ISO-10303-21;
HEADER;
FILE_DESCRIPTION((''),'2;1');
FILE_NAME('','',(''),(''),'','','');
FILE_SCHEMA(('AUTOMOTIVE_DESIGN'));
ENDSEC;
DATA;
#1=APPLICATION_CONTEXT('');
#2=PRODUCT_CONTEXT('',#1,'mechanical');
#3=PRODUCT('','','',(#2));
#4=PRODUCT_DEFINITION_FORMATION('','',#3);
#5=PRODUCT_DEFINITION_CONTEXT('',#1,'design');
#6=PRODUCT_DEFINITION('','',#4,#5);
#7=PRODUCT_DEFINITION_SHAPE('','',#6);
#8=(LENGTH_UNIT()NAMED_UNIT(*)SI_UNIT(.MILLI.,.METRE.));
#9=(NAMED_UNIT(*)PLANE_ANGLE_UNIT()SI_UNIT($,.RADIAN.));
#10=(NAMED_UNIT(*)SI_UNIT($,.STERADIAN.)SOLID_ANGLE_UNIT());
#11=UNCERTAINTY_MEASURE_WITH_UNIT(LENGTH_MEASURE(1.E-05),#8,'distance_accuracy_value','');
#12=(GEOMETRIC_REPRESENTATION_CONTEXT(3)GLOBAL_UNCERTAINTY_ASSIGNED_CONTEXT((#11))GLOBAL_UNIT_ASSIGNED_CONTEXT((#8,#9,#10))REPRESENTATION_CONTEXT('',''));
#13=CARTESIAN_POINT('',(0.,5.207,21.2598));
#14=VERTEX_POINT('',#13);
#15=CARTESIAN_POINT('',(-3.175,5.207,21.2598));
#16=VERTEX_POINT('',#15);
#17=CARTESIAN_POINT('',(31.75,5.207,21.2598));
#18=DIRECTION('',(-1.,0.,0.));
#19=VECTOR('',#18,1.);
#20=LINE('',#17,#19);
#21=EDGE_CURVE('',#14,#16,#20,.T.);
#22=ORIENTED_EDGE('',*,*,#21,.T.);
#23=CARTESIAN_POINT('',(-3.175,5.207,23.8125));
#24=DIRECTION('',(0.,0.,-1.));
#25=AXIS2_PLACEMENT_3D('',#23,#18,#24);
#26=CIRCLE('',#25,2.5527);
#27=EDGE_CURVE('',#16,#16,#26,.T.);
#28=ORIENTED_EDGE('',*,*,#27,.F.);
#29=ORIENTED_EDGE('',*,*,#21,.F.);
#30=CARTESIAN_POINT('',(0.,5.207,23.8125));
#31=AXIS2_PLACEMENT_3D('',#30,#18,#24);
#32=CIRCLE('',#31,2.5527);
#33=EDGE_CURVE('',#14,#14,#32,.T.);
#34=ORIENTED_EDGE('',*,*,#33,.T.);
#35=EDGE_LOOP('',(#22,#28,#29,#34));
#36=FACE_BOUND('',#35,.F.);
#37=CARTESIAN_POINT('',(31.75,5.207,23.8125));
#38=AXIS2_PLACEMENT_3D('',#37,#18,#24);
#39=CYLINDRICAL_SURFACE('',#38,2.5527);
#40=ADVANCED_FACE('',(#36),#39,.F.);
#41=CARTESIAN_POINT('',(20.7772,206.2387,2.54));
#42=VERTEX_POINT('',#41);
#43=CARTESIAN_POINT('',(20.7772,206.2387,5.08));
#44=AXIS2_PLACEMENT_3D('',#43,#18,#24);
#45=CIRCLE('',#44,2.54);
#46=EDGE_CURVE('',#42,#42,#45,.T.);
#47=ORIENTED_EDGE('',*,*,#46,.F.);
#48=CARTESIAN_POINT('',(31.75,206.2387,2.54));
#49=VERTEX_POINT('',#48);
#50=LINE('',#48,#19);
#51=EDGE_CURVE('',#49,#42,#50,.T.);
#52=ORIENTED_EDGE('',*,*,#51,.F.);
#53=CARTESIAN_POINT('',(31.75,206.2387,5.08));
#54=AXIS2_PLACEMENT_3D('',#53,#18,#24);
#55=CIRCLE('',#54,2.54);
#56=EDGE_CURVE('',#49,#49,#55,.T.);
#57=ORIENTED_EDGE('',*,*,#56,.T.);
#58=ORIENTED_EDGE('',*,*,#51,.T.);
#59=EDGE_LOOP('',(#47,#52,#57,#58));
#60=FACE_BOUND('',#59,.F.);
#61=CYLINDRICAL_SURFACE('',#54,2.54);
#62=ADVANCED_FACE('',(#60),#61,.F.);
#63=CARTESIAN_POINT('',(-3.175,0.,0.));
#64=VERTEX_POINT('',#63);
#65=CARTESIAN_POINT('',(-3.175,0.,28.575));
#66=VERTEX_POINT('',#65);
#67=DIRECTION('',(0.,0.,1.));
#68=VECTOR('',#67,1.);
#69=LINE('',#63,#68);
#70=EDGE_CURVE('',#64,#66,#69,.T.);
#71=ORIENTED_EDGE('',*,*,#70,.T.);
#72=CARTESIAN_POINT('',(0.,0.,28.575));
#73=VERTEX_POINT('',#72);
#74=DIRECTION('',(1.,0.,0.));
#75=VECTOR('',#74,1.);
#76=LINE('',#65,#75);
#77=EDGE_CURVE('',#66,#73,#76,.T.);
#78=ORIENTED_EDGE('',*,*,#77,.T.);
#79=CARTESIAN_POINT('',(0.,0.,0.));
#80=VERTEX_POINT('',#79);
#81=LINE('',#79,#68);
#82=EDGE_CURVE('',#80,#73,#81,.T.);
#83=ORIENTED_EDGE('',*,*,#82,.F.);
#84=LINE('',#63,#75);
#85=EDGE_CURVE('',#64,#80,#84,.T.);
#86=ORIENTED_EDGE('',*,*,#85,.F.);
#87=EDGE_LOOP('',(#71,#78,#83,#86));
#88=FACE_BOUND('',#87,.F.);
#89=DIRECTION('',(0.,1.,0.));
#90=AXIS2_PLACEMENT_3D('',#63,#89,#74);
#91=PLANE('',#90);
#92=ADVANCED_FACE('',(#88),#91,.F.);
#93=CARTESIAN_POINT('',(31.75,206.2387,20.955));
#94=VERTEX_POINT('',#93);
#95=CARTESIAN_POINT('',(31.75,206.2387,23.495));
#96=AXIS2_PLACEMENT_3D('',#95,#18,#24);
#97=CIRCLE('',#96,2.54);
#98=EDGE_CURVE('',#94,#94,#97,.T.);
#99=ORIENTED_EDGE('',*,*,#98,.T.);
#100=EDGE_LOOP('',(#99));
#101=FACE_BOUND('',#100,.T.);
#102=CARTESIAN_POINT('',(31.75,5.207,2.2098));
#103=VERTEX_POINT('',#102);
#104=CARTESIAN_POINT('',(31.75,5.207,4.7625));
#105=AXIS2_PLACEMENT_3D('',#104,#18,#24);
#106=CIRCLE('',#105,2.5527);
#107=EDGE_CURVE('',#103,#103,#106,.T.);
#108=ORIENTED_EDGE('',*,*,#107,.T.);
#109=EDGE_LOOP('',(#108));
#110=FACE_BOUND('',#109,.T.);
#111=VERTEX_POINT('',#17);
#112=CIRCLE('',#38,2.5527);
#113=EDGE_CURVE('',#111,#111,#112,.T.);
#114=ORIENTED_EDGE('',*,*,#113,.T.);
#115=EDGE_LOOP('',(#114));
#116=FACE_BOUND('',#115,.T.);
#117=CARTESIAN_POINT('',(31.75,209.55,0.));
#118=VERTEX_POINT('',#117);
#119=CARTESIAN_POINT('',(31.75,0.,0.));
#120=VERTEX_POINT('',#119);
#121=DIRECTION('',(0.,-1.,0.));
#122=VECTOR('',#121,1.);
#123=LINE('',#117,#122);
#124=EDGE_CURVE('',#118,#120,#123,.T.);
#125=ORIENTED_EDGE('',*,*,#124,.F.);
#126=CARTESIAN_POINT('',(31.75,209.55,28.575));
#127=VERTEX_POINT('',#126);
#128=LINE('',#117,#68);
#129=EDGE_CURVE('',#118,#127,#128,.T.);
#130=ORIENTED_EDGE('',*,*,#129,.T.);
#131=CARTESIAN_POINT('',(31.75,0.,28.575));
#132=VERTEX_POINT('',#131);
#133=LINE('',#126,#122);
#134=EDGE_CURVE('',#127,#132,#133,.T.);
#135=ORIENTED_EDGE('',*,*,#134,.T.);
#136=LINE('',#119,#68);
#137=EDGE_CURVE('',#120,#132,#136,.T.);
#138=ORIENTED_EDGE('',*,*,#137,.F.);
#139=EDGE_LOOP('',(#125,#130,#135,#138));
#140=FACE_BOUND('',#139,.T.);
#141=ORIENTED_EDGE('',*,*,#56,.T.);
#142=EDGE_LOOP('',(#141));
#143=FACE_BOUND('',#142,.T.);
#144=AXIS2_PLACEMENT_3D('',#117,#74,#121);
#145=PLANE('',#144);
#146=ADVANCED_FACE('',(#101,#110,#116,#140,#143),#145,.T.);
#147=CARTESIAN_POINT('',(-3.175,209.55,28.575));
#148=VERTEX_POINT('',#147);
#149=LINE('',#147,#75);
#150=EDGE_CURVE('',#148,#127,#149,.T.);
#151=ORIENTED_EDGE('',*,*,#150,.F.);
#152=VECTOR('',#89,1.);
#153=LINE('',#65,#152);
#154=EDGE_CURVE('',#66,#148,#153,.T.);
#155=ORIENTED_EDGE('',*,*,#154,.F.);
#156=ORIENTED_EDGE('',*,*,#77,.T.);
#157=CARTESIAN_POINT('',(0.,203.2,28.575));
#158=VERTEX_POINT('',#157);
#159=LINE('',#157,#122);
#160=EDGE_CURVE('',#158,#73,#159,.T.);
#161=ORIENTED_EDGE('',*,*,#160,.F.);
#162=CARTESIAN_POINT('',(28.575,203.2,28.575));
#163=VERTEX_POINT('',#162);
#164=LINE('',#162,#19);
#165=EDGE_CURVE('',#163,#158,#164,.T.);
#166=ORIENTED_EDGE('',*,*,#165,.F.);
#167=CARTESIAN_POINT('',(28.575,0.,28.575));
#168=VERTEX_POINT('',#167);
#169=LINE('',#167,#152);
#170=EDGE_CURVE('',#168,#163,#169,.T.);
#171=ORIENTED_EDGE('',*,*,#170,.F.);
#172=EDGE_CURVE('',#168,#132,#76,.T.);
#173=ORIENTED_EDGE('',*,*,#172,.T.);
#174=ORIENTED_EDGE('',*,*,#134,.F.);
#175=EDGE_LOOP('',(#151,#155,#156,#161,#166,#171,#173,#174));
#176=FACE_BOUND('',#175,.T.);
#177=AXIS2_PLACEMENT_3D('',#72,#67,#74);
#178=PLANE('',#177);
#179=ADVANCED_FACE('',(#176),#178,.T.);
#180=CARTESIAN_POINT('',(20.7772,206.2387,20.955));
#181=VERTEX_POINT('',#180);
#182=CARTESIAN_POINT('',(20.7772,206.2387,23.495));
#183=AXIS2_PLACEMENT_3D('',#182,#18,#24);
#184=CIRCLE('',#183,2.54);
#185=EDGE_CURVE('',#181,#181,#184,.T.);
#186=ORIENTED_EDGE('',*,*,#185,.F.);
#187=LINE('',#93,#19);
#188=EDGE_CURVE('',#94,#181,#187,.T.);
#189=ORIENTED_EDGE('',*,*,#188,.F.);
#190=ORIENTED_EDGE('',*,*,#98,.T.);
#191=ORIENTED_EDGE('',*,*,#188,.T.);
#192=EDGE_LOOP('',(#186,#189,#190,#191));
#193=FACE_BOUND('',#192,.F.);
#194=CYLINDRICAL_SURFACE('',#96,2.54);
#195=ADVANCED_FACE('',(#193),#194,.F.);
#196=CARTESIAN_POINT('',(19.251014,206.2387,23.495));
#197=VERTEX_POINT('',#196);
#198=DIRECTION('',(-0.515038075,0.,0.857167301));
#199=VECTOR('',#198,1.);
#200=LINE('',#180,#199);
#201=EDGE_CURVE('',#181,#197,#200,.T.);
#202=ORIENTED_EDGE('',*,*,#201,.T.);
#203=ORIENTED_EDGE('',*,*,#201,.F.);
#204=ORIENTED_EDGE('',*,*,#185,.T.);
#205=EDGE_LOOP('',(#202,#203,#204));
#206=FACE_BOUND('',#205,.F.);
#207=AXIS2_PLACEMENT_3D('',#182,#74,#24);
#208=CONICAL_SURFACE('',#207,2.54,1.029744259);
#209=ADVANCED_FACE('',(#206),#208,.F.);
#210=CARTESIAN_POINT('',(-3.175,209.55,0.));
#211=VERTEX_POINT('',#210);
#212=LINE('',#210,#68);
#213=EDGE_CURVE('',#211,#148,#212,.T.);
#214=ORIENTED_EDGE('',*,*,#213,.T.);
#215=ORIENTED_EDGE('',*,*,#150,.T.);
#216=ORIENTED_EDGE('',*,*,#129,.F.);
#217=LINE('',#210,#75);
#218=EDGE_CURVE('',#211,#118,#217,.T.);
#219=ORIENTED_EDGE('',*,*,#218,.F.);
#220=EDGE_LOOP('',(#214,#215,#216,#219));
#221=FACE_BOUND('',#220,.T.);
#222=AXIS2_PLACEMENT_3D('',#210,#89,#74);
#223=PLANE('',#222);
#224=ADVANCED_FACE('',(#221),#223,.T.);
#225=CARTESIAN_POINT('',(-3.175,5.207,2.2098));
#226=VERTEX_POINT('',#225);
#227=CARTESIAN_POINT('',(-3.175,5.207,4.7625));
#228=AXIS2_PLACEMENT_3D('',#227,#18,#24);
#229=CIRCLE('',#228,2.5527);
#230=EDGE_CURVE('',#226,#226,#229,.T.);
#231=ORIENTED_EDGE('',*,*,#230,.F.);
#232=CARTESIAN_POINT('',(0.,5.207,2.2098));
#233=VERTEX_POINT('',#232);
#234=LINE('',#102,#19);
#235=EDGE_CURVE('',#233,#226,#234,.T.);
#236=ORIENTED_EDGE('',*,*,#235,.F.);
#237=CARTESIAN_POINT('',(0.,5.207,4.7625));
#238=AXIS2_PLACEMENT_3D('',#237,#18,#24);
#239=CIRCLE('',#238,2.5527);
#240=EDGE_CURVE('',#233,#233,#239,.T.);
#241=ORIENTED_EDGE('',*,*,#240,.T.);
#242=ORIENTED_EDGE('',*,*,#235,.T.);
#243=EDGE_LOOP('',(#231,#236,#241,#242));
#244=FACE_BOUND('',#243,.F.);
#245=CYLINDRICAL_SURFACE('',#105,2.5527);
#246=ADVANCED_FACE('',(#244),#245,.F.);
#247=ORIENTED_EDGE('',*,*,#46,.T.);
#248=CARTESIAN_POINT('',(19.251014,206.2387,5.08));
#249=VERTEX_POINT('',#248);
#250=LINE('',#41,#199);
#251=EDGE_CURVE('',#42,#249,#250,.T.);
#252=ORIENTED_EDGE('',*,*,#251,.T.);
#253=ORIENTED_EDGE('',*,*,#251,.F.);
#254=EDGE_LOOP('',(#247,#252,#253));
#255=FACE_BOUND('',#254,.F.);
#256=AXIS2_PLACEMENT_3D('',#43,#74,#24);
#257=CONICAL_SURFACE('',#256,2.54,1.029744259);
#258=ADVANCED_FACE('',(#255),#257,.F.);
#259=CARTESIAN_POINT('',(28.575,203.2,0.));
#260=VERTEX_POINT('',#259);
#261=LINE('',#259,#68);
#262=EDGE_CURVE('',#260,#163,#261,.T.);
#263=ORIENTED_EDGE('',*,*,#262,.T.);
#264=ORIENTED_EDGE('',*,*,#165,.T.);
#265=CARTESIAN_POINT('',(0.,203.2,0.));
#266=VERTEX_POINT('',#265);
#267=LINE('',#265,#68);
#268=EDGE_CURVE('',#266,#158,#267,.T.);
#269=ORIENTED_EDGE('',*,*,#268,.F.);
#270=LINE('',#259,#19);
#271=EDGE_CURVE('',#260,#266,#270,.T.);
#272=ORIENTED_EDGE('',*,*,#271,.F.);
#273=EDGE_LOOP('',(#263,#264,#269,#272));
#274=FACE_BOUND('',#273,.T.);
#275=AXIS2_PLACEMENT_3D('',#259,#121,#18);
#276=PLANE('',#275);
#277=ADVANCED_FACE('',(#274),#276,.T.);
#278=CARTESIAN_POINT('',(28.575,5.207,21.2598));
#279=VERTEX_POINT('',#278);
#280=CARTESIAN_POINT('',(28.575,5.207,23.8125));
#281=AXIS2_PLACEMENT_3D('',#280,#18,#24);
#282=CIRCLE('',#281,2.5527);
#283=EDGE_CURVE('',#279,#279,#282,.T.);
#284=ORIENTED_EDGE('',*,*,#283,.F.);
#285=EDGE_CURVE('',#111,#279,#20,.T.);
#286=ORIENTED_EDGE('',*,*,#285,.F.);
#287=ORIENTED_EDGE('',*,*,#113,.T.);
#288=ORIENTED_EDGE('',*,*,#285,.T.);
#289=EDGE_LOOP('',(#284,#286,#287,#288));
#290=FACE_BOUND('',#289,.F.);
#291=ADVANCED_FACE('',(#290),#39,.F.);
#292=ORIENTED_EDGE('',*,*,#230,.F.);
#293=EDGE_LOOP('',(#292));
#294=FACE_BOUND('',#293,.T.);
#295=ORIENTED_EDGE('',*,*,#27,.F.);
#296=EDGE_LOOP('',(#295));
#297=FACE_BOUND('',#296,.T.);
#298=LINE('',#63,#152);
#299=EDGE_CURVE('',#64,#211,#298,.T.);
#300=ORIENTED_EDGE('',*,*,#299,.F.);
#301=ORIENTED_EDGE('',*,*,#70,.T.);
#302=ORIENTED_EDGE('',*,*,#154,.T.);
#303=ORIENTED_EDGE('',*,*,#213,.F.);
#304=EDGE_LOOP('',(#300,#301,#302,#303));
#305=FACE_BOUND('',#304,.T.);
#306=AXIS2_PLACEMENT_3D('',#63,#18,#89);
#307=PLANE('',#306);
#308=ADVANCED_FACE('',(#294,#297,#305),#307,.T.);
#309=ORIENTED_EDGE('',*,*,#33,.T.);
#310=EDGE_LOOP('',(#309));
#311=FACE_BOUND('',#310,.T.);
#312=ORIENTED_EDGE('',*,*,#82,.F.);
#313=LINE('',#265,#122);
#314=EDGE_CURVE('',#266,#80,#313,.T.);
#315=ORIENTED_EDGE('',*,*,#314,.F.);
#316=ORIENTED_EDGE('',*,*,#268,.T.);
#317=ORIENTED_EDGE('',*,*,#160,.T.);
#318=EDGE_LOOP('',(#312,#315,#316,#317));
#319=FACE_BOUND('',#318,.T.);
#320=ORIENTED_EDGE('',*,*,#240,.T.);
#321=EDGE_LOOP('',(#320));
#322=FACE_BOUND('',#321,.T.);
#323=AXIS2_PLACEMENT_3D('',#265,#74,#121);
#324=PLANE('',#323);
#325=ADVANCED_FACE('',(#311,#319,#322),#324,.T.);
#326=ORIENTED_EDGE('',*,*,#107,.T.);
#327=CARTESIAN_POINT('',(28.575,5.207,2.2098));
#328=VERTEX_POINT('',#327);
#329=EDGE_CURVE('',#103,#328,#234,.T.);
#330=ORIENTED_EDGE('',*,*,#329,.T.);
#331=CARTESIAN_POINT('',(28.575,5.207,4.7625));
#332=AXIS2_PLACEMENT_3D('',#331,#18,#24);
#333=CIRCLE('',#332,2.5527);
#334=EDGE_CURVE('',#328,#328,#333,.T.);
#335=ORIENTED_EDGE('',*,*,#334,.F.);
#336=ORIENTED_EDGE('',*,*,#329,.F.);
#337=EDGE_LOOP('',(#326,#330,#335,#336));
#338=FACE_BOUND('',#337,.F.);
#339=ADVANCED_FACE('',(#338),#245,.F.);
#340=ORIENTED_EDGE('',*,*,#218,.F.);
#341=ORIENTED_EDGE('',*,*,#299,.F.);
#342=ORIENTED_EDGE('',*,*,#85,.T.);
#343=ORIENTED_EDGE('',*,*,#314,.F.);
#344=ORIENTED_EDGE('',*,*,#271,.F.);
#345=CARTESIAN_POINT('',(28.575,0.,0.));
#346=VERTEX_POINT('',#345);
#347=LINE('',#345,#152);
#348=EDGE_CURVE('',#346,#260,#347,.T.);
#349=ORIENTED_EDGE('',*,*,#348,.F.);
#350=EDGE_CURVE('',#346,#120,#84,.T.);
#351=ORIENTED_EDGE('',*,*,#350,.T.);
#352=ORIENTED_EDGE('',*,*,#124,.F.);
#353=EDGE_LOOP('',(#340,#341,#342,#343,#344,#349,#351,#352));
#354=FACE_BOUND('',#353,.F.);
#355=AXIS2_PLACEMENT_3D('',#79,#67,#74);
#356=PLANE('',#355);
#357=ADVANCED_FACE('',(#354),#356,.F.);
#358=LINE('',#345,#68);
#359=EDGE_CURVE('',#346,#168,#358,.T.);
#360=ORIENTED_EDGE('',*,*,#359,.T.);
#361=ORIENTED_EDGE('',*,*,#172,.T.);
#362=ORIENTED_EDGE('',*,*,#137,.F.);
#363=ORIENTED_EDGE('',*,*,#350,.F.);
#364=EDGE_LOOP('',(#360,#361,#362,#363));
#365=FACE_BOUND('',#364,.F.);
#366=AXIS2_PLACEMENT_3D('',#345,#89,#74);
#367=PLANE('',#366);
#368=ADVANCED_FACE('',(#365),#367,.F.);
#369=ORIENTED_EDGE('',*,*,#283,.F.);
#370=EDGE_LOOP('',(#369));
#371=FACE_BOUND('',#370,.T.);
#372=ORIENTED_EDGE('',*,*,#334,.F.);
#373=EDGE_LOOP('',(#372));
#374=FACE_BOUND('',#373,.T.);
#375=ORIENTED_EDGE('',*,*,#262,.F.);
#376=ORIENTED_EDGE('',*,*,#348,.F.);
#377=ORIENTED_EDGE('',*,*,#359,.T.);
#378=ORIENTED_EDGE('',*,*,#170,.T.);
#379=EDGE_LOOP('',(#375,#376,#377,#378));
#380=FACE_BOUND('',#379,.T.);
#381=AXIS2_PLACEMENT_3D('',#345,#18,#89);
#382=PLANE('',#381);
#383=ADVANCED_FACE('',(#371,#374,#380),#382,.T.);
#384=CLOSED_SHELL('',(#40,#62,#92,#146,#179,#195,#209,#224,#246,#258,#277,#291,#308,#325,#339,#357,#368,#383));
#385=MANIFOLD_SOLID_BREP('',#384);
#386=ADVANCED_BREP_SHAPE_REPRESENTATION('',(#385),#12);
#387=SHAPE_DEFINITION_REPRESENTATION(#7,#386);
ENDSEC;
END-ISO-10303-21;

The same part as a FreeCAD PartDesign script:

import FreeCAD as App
import Part
import Sketcher

V = App.Vector
Q = App.Units.Quantity


def add_polygon(sketch, points):
    """Adds a closed chain of lines whose ends are joined by coincident constraints."""
    first, n = sketch.GeometryCount, len(points)
    for a, b in zip(points, points[1:] + points[:1]):
        sketch.addGeometry(Part.LineSegment(App.Vector(*a, 0), App.Vector(*b, 0)), False)
    for i in range(n):
        sketch.addConstraint(Sketcher.Constraint("Coincident", first + i, 2, first + (i + 1) % n, 1))

doc = App.newDocument("Part")
body = doc.addObject("PartDesign::Body", "Body")

# Sketch on XY plane
sketch1 = doc.addObject("Sketcher::SketchObject", "Sketch")
body.addObject(sketch1)
sketch1.AttachmentSupport = (doc.XY_Plane, [""])
sketch1.MapMode = "FlatFace"
add_polygon(sketch1, [(-3.2, 0), (0, 0), (0, 203.2), (28.6, 203.2), (28.6, 0), (31.8, 0), (31.8, 209.6), (-3.2, 209.6)])  # lines 0-7
sketch1.addConstraint([
    Sketcher.Constraint("Horizontal", 0),
    Sketcher.Constraint("Vertical", 1),
    Sketcher.Constraint("Horizontal", 2),
    Sketcher.Constraint("Vertical", 3),
    Sketcher.Constraint("Horizontal", 4),
    Sketcher.Constraint("Vertical", 5),
    Sketcher.Constraint("Horizontal", 6),
    Sketcher.Constraint("Vertical", 7),
    Sketcher.Constraint("Coincident", 0, 2, -1, 1),
    Sketcher.Constraint("PointOnObject", 3, 2, -1),
    Sketcher.Constraint("Equal", 0, 4),
    Sketcher.Constraint("DistanceY", 1, 1, 1, 2, Q("8 in")),
    Sketcher.Constraint("DistanceX", 0, 1, 0, 2, Q("0.125 in")),
    Sketcher.Constraint("DistanceX", 2, 1, 2, 2, Q("1.125 in")),
    Sketcher.Constraint("DistanceY", 2, 2, 5, 2, Q("0.25 in")),
])
pad1 = doc.addObject("PartDesign::Pad", "Pad")
body.addObject(pad1)
pad1.Profile = sketch1
pad1.Length = Q("1.125 in")

# Sketch on YZ plane
sketch2 = doc.addObject("Sketcher::SketchObject", "Sketch001")
body.addObject(sketch2)
sketch2.AttachmentSupport = (doc.YZ_Plane, [""])
sketch2.MapMode = "FlatFace"
sketch2.AttachmentOffset = App.Placement(V(0, 0, 1.25 * 25.4), App.Rotation())
sketch2.addGeometry([
    Part.Circle(V(5.2, 23.8, 0), V(0, 0, 1), 2.6),
    Part.Circle(V(5.2, 4.8, 0), V(0, 0, 1), 2.6),
], False)
sketch2.addConstraint([
    Sketcher.Constraint("Equal", 0, 1),
    Sketcher.Constraint("Vertical", 0, 3, 1, 3),
    Sketcher.Constraint("Diameter", 0, Q("0.201 in")),
    Sketcher.Constraint("DistanceY", 1, 3, 0, 3, Q("0.75 in")),
    Sketcher.Constraint("DistanceX", -1, 1, 0, 3, Q("0.205 in")),
    Sketcher.Constraint("DistanceY", -1, 1, 0, 3, Q("0.9375 in")),
])
doc.recompute()
hole = doc.addObject("PartDesign::Hole", "Hole")
body.addObject(hole)
hole.Profile = sketch2
hole.ThreadType = "None"
hole.Diameter = Q("0.201 in")
hole.DepthType = "ThroughAll"

# Sketch on YZ plane
sketch3 = doc.addObject("Sketcher::SketchObject", "Sketch002")
body.addObject(sketch3)
sketch3.AttachmentSupport = (doc.YZ_Plane, [""])
sketch3.MapMode = "FlatFace"
sketch3.AttachmentOffset = App.Placement(V(0, 0, 1.25 * 25.4), App.Rotation())
sketch3.addGeometry([
    Part.Circle(V(206.2, 23.5, 0), V(0, 0, 1), 2.5),
    Part.Circle(V(206.2, 5.1, 0), V(0, 0, 1), 2.5),
], False)
sketch3.addConstraint([
    Sketcher.Constraint("Equal", 0, 1),
    Sketcher.Constraint("Vertical", 0, 3, 1, 3),
    Sketcher.Constraint("Diameter", 0, Q("0.2 in")),
    Sketcher.Constraint("DistanceY", -1, 1, 1, 3, Q("0.2 in")),
    Sketcher.Constraint("DistanceY", -1, 1, 0, 3, Q("0.925 in")),
    Sketcher.Constraint("DistanceX", -1, 1, 0, 3, 206.2387),
])
doc.recompute()
hole2 = doc.addObject("PartDesign::Hole", "Hole001")
body.addObject(hole2)
hole2.Profile = sketch3
hole2.ThreadType = "None"
hole2.Diameter = Q("0.2 in")
hole2.DepthType = "Dimension"
hole2.Depth = Q("0.432 in")
hole2.DrillPoint = "Angled"
hole2.DrillPointAngle = 118

doc.recompute()
